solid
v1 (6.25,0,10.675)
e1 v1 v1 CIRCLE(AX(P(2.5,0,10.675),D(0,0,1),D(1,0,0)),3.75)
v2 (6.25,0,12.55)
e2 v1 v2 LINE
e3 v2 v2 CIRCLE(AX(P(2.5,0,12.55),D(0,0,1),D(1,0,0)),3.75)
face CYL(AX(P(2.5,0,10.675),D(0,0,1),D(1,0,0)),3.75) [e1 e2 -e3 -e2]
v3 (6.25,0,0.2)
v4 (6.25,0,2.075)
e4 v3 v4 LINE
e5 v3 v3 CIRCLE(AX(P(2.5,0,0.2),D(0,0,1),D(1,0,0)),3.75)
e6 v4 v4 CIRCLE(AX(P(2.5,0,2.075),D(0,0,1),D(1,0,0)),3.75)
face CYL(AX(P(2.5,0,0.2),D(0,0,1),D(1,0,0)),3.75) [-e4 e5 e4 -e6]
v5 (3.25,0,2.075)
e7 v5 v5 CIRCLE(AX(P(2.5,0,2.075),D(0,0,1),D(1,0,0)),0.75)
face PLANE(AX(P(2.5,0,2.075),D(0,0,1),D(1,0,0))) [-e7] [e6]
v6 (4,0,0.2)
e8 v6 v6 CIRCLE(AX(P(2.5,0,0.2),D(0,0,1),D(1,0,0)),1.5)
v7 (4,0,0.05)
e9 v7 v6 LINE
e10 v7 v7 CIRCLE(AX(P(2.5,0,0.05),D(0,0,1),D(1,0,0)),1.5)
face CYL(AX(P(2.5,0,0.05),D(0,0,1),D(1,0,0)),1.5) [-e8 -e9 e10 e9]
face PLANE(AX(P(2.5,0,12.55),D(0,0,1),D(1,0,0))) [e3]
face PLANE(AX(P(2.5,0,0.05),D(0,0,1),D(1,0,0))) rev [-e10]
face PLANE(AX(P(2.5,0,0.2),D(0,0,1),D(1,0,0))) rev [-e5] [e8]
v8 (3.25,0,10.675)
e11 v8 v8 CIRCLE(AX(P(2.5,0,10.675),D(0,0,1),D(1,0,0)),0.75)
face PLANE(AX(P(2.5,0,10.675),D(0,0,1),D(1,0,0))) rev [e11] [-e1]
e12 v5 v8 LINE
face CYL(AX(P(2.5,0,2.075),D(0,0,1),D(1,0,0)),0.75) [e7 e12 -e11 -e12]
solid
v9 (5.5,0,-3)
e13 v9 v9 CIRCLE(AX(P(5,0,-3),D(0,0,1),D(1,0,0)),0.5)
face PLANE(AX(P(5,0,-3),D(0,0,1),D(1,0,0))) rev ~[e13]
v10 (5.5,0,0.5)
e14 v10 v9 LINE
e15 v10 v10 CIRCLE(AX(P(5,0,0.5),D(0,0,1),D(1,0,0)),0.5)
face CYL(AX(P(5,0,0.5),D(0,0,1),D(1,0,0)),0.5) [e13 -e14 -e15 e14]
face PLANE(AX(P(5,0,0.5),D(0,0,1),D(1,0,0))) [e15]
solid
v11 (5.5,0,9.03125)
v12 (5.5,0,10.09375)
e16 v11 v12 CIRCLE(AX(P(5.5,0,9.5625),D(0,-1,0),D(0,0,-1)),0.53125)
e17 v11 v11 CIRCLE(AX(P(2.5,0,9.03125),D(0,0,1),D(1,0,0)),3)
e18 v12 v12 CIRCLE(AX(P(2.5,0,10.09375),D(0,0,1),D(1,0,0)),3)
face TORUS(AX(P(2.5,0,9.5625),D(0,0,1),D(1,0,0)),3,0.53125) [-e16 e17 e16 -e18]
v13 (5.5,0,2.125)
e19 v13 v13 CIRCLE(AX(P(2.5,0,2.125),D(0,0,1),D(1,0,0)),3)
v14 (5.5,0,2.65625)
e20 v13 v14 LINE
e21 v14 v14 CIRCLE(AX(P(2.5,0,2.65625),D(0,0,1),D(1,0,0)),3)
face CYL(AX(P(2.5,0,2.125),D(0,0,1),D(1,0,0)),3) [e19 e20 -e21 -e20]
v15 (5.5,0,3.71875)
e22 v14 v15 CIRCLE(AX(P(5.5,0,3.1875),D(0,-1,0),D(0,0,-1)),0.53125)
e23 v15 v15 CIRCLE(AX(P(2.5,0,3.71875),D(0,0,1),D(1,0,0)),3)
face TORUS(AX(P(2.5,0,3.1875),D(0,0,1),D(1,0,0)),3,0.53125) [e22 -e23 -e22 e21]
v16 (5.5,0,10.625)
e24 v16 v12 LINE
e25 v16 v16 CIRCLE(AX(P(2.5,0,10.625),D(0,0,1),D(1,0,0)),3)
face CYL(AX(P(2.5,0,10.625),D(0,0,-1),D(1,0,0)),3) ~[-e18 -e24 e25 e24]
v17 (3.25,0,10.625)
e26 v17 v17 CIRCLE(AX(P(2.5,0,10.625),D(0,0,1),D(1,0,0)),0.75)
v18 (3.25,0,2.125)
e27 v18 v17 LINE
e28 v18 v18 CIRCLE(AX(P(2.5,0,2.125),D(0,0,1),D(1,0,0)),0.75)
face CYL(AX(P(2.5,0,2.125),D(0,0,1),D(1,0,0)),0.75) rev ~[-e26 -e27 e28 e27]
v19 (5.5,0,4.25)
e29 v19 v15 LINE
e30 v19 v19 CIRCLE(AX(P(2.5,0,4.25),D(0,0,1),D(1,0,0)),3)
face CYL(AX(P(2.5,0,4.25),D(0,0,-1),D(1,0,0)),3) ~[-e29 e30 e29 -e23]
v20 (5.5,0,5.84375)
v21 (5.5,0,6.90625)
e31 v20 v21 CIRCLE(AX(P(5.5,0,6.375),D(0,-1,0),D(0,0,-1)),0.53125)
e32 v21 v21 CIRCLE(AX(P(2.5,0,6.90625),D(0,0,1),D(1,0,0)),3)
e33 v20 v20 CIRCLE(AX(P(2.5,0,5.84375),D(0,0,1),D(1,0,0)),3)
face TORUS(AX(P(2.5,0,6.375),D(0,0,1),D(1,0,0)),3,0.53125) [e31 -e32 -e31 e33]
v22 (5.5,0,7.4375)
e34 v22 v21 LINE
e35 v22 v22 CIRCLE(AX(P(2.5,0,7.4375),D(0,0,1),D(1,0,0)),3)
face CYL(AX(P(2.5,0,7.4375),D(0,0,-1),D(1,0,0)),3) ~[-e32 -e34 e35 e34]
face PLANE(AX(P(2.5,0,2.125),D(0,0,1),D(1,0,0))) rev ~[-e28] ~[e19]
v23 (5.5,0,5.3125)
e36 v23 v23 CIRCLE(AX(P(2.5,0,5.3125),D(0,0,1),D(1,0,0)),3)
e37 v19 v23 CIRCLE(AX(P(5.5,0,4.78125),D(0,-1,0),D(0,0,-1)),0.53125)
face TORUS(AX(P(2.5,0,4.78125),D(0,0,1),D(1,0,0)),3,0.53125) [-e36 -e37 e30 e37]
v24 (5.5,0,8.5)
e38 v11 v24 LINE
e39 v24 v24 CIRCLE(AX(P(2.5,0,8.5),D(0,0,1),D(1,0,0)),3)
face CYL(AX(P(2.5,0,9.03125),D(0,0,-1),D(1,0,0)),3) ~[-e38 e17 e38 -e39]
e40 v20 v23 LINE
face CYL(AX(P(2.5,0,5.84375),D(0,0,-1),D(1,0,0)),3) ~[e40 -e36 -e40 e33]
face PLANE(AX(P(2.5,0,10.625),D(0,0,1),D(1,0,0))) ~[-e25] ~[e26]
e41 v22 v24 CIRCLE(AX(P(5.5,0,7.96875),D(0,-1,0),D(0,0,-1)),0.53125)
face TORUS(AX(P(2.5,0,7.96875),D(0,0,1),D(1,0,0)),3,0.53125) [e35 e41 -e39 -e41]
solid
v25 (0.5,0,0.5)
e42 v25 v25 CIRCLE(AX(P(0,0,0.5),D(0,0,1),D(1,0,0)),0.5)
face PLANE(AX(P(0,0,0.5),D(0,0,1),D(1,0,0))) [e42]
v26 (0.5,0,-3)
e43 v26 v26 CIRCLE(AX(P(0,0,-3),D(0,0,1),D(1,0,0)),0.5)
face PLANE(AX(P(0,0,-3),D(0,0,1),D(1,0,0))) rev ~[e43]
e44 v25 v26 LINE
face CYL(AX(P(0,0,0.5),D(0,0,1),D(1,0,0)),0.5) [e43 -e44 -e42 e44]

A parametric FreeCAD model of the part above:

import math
import FreeCAD as App
import Part
import Sketcher

V = App.Vector

doc = App.newDocument("Part")
body = doc.addObject("PartDesign::Body", "Body")
body.AllowCompound = True

sketch1 = body.newObject("Sketcher::SketchObject", "Sketch")
sketch1.AttachmentSupport = (doc.getObject("XY_Plane"), [""])
sketch1.MapMode = "FlatFace"
sketch1.AttachmentOffset = App.Placement(V(0, 0, 0.5), App.Rotation())
sketch1.addGeometry([
    Part.Circle(V(0, 0, 0), V(0, 0, 1), 0.5),
    Part.Circle(V(5, 0, 0), V(0, 0, 1), 0.5),
], False)
sketch1.addConstraint([
    Sketcher.Constraint("Coincident", 0, 3, -1, 1),
    Sketcher.Constraint("Equal", 0, 1),
    Sketcher.Constraint("PointOnObject", 1, 3, -1),
    Sketcher.Constraint("Diameter", 0, 1.0),
    Sketcher.Constraint("DistanceX", -1, 1, 1, 3, 5.0),
])
pad1 = body.newObject("PartDesign::Pad", "Pad")
pad1.Profile = sketch1
pad1.Length = 3.5
pad1.Reversed = True
body2 = doc.addObject("PartDesign::Body", "Body001")

sketch2 = body2.newObject("Sketcher::SketchObject", "Sketch001")
sketch2.AttachmentSupport = (doc.getObject("XZ_Plane001"), [""])
sketch2.MapMode = "FlatFace"
sketch2.addGeometry([
    Part.LineSegment(V(2.5, 0.05, 0), V(4, 0.05, 0)),
    Part.LineSegment(V(4, 0.05, 0), V(4, 0.2, 0)),
    Part.LineSegment(V(4, 0.2, 0), V(6.25, 0.2, 0)),
    Part.LineSegment(V(6.25, 0.2, 0), V(6.25, 2.075, 0)),
    Part.LineSegment(V(6.25, 2.075, 0), V(3.25, 2.075, 0)),
    Part.LineSegment(V(3.25, 2.075, 0), V(3.25, 10.675, 0)),
    Part.LineSegment(V(3.25, 10.675, 0), V(6.25, 10.675, 0)),
    Part.LineSegment(V(6.25, 10.675, 0), V(6.25, 12.55, 0)),
    Part.LineSegment(V(6.25, 12.55, 0), V(2.5, 12.55, 0)),
    Part.LineSegment(V(2.5, 12.55, 0), V(2.5, 0.05, 0)),
], False)
sketch2.addGeometry(Part.LineSegment(V(2.5, 0.05, 0), V(2.5, 12.55, 0)), True)
sketch2.addConstraint([
    Sketcher.Constraint("Coincident", 0, 2, 1, 1),
    Sketcher.Constraint("Coincident", 1, 2, 2, 1),
    Sketcher.Constraint("Coincident", 2, 2, 3, 1),
    Sketcher.Constraint("Coincident", 3, 2, 4, 1),
    Sketcher.Constraint("Coincident", 4, 2, 5, 1),
    Sketcher.Constraint("Coincident", 5, 2, 6, 1),
    Sketcher.Constraint("Coincident", 6, 2, 7, 1),
    Sketcher.Constraint("Coincident", 7, 2, 8, 1),
    Sketcher.Constraint("Coincident", 8, 2, 9, 1),
    Sketcher.Constraint("Coincident", 9, 2, 0, 1),
    Sketcher.Constraint("Horizontal", 0),
    Sketcher.Constraint("Vertical", 1),
    Sketcher.Constraint("Horizontal", 2),
    Sketcher.Constraint("Vertical", 3),
    Sketcher.Constraint("Horizontal", 4),
    Sketcher.Constraint("Vertical", 5),
    Sketcher.Constraint("Horizontal", 6),
    Sketcher.Constraint("Vertical", 7),
    Sketcher.Constraint("Horizontal", 8),
    Sketcher.Constraint("Vertical", 9),
    Sketcher.Constraint("Vertical", 10),
    Sketcher.Constraint("Coincident", 10, 1, 9, 2),
    Sketcher.Constraint("Horizontal", 7, 2, 10, 2),
    Sketcher.Constraint("Vertical", 3, 2, 6, 2),
    Sketcher.Constraint("Equal", 3, 7),
    Sketcher.Constraint("DistanceX", 4, 2, 4, 1, 3.0),
    Sketcher.Constraint("DistanceX", 0, 1, 0, 2, 1.5),
    Sketcher.Constraint("DistanceY", 5, 1, 5, 2, 8.6),
    Sketcher.Constraint("DistanceY", 9, 2, 9, 1, 12.5),
    Sketcher.Constraint("DistanceX", -1, 1, 0, 2, 4.0),
    Sketcher.Constraint("DistanceX", 2, 1, 2, 2, 2.25),
    Sketcher.Constraint("DistanceY", 1, 1, 1, 2, 0.15),
    Sketcher.Constraint("DistanceY", -1, 1, 1, 2, 0.2),
])
revolution = body2.newObject("PartDesign::Revolution", "Revolution")
revolution.Profile = sketch2
revolution.ReferenceAxis = (sketch2, ["Axis0"])
revolution.Angle = 360
body3 = doc.addObject("PartDesign::Body", "Body002")

sketch3 = body3.newObject("Sketcher::SketchObject", "Sketch002")
sketch3.AttachmentSupport = (doc.getObject("XZ_Plane002"), [""])
sketch3.MapMode = "FlatFace"
sketch3.addGeometry([
    Part.LineSegment(V(3.25, 2.125, 0), V(5.5, 2.125, 0)),
    Part.LineSegment(V(5.5, 2.125, 0), V(5.5, 2.65625, 0)),
    Part.ArcOfCircle(Part.Circle(V(5.5, 3.1875, 0), V(0, 0, 1), 0.53125), math.radians(-90), math.radians(90)),
    Part.LineSegment(V(5.5, 3.71875, 0), V(5.5, 4.25, 0)),
    Part.ArcOfCircle(Part.Circle(V(5.5, 4.78125, 0), V(0, 0, 1), 0.53125), math.radians(-90), math.radians(90)),
    Part.LineSegment(V(5.5, 5.3125, 0), V(5.5, 5.84375, 0)),
    Part.ArcOfCircle(Part.Circle(V(5.5, 6.375, 0), V(0, 0, 1), 0.53125), math.radians(-90), math.radians(90)),
    Part.LineSegment(V(5.5, 6.90625, 0), V(5.5, 7.4375, 0)),
    Part.ArcOfCircle(Part.Circle(V(5.5, 7.96875, 0), V(0, 0, 1), 0.53125), math.radians(-90), math.radians(90)),
    Part.LineSegment(V(5.5, 8.5, 0), V(5.5, 9.03125, 0)),
    Part.ArcOfCircle(Part.Circle(V(5.5, 9.5625, 0), V(0, 0, 1), 0.53125), math.radians(-90), math.radians(90)),
    Part.LineSegment(V(5.5, 10.09375, 0), V(5.5, 10.625, 0)),
    Part.LineSegment(V(5.5, 10.625, 0), V(3.25, 10.625, 0)),
    Part.LineSegment(V(3.25, 10.625, 0), V(3.25, 2.125, 0)),
], False)
sketch3.addGeometry(Part.LineSegment(V(2.5, 2.125, 0), V(2.5, 10.625, 0)), True)
sketch3.addConstraint([
    Sketcher.Constraint("Coincident", 0, 2, 1, 1),
    Sketcher.Constraint("Coincident", 1, 2, 2, 1),
    Sketcher.Constraint("Coincident", 2, 2, 3, 1),
    Sketcher.Constraint("Coincident", 3, 2, 4, 1),
    Sketcher.Constraint("Coincident", 4, 2, 5, 1),
    Sketcher.Constraint("Coincident", 5, 2, 6, 1),
    Sketcher.Constraint("Coincident", 6, 2, 7, 1),
    Sketcher.Constraint("Coincident", 7, 2, 8, 1),
    Sketcher.Constraint("Coincident", 8, 2, 9, 1),
    Sketcher.Constraint("Coincident", 9, 2, 10, 1),
    Sketcher.Constraint("Coincident", 10, 2, 11, 1),
    Sketcher.Constraint("Coincident", 11, 2, 12, 1),
    Sketcher.Constraint("Coincident", 12, 2, 13, 1),
    Sketcher.Constraint("Coincident", 13, 2, 0, 1),
    Sketcher.Constraint("Horizontal", 0),
    Sketcher.Constraint("Vertical", 1),
    Sketcher.Constraint("Vertical", 3),
    Sketcher.Constraint("Vertical", 5),
    Sketcher.Constraint("Vertical", 7),
    Sketcher.Constraint("Vertical", 9),
    Sketcher.Constraint("Vertical", 11),
    Sketcher.Constraint("Horizontal", 12),
    Sketcher.Constraint("Vertical", 13),
    Sketcher.Constraint("Vertical", 14),
    Sketcher.Constraint("Equal", 2, 4),
    Sketcher.Constraint("Equal", 4, 6),
    Sketcher.Constraint("Equal", 6, 8),
    Sketcher.Constraint("Equal", 8, 10),
    Sketcher.Constraint("Horizontal", 13, 2, 14, 1),
    Sketcher.Constraint("Horizontal", 12, 2, 14, 2),
    Sketcher.Constraint("Vertical", 2, 3, 4, 3),
    Sketcher.Constraint("Vertical", 4, 3, 6, 3),
    Sketcher.Constraint("Vertical", 6, 3, 8, 3),
    Sketcher.Constraint("Vertical", 8, 3, 10, 3),
    Sketcher.Constraint("Vertical", 10, 3, 0, 2),
    Sketcher.Constraint("Vertical", 1, 2, 2, 2),
    Sketcher.Constraint("Vertical", 3, 2, 4, 2),
    Sketcher.Constraint("Vertical", 5, 2, 6, 2),
    Sketcher.Constraint("Vertical", 7, 2, 8, 2),
    Sketcher.Constraint("Vertical", 9, 2, 10, 2),
    Sketcher.Constraint("Equal", 1, 3),
    Sketcher.Constraint("Equal", 3, 5),
    Sketcher.Constraint("Equal", 5, 7),
    Sketcher.Constraint("Equal", 7, 9),
    Sketcher.Constraint("Equal", 9, 11),
    Sketcher.Constraint("DistanceY", 13, 2, 13, 1, 8.5),
    Sketcher.Constraint("DistanceX", 14, 1, 0, 2, 3.0),
    Sketcher.Constraint("DistanceX", 0, 1, 0, 2, 2.25),
    Sketcher.Constraint("DistanceX", -1, 1, 2, 3, 5.5),
    Sketcher.Constraint("DistanceY", -1, 1, 8, 2, 8.5),
    Sketcher.Constraint("DistanceY", -1, 1, 3, 2, 4.25),
])
revolution2 = body3.newObject("PartDesign::Revolution", "Revolution001")
revolution2.Profile = sketch3
revolution2.ReferenceAxis = (sketch3, ["Axis0"])
revolution2.Angle = 360

doc.recompute()
